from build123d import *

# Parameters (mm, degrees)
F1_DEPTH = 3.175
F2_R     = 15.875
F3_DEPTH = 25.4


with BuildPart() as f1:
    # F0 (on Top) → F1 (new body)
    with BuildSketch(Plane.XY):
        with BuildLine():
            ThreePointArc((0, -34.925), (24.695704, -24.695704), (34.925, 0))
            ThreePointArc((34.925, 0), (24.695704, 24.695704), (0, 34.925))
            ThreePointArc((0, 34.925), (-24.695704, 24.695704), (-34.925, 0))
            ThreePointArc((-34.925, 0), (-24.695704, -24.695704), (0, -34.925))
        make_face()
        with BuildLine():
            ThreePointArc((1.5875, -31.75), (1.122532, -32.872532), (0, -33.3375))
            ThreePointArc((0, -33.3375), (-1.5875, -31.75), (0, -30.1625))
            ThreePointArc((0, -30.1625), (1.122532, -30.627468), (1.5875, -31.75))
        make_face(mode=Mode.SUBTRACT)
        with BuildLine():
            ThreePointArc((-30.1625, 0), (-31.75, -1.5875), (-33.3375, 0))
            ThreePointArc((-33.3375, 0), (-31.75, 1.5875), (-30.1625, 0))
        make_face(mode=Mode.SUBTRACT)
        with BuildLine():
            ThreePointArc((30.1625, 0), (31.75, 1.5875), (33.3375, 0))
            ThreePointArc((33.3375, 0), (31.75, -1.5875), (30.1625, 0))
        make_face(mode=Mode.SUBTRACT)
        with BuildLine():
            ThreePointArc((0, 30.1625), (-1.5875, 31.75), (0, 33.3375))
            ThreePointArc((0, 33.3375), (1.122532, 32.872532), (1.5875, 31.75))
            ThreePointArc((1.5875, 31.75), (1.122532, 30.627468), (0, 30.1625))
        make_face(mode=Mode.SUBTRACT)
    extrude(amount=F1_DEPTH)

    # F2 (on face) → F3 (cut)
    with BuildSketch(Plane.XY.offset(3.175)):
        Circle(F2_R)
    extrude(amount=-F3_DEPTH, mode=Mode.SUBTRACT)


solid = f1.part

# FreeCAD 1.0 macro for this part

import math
import FreeCAD as App
import Part
import Sketcher

V = App.Vector
Q = App.Units.Quantity

doc = App.newDocument("Part")
body = doc.addObject("PartDesign::Body", "Body")

sketch1 = doc.addObject("Sketcher::SketchObject", "Sketch")
body.addObject(sketch1)
sketch1.AttachmentSupport = (doc.XY_Plane, [""])
sketch1.MapMode = "FlatFace"
sketch1.addGeometry([
    Part.ArcOfCircle(Part.Circle(V(0, 0, 0), V(0, 0, 1), 34.9), math.radians(-90), math.radians(0)),
    Part.ArcOfCircle(Part.Circle(V(0, 0, 0), V(0, 0, 1), 34.9), math.radians(0), math.radians(90)),
    Part.ArcOfCircle(Part.Circle(V(0, 0, 0), V(0, 0, 1), 34.9), math.radians(90), math.radians(180)),
    Part.ArcOfCircle(Part.Circle(V(0, 0, 0), V(0, 0, 1), 34.9), math.radians(-180), math.radians(-90)),
    Part.ArcOfCircle(Part.Circle(V(0, -31.8, 0), V(0, 0, 1), 1.6), math.radians(0), math.radians(90)),
    Part.ArcOfCircle(Part.Circle(V(0, -31.7, 0), V(0, 0, 1), 1.6), math.radians(-90), math.radians(0)),
    Part.ArcOfCircle(Part.Circle(V(0, -31.8, 0), V(0, 0, 1), 1.6), math.radians(90), math.radians(270)),
    Part.Circle(V(-31.8, 0, 0), V(0, 0, 1), 1.6),
    Part.Circle(V(31.8, 0, 0), V(0, 0, 1), 1.6),
    Part.ArcOfCircle(Part.Circle(V(0, 31.8, 0), V(0, 0, 1), 1.6), math.radians(-90), math.radians(0)),
    Part.ArcOfCircle(Part.Circle(V(0, 31.8, 0), V(0, 0, 1), 1.6), math.radians(90), math.radians(270)),
    Part.ArcOfCircle(Part.Circle(V(0, 31.7, 0), V(0, 0, 1), 1.6), math.radians(0), math.radians(90)),
], False)
sketch1.addConstraint([
    Sketcher.Constraint("Tangent", 0, 2, 1, 1),
    Sketcher.Constraint("Tangent", 1, 2, 2, 1),
    Sketcher.Constraint("Tangent", 2, 2, 3, 1),
    Sketcher.Constraint("Tangent", 3, 2, 0, 1),
    Sketcher.Constraint("Tangent", 4, 1, 5, 2),
    Sketcher.Constraint("Tangent", 5, 1, 6, 2),
    Sketcher.Constraint("Tangent", 6, 1, 4, 2),
    Sketcher.Constraint("Tangent", 9, 1, 10, 2),
    Sketcher.Constraint("Tangent", 10, 1, 11, 2),
    Sketcher.Constraint("Tangent", 11, 1, 9, 2),
    Sketcher.Constraint("Coincident", 0, 3, -1, 1),
    Sketcher.Constraint("Equal", 0, 1),
    Sketcher.Constraint("Equal", 6, 7),
    Sketcher.Constraint("Equal", 7, 8),
    Sketcher.Constraint("Equal", 8, 9),
    Sketcher.Constraint("Symmetric", 7, 3, 8, 3, -1, 1),
    Sketcher.Constraint("Symmetric", 4, 3, 9, 3, -1, 1),
    Sketcher.Constraint("Symmetric", 4, 1, 11, 1, -1),
    Sketcher.Constraint("PointOnObject", 7, 3, -1),
    Sketcher.Constraint("PointOnObject", 0, 2, -1),
    Sketcher.Constraint("PointOnObject", 1, 2, -2),
    Sketcher.Constraint("PointOnObject", 2, 2, -1),
    Sketcher.Constraint("PointOnObject", 3, 2, -2),
    Sketcher.Constraint("PointOnObject", 5, 1, -2),
    Sketcher.Constraint("PointOnObject", 6, 1, -2),
    Sketcher.Constraint("PointOnObject", 9, 1, -2),
    Sketcher.Constraint("PointOnObject", 10, 1, -2),
    Sketcher.Constraint("Horizontal", 6, 3, 4, 1),
    Sketcher.Constraint("Diameter", 7, Q("0.125 in")),
    Sketcher.Constraint("Radius", 0, Q("1.375 in")),
    Sketcher.Constraint("DistanceY", 4, 3, -1, 1, Q("1.25 in")),
    Sketcher.Constraint("DistanceX", 7, 3, -1, 1, Q("1.25 in")),
])
pad1 = doc.addObject("PartDesign::Pad", "Pad")
body.addObject(pad1)
pad1.Profile = sketch1
pad1.Length = Q("0.125 in")

sketch2 = doc.addObject("Sketcher::SketchObject", "Sketch001")
body.addObject(sketch2)
sketch2.AttachmentSupport = (doc.XY_Plane, [""])
sketch2.MapMode = "FlatFace"
sketch2.AttachmentOffset = App.Placement(V(0, 0, 0.125 * 25.4), App.Rotation())
sketch2.addGeometry(Part.Circle(V(0, 0, 0), V(0, 0, 1), 16), False)
sketch2.addConstraint([
    Sketcher.Constraint("Coincident", 0, 3, -1, 1),
    Sketcher.Constraint("Diameter", 0, Q("1.25 in")),
])
pocket1 = doc.addObject("PartDesign::Pocket", "Pocket")
body.addObject(pocket1)
pocket1.Profile = sketch2
pocket1.Length = Q("1 in")

doc.recompute()
